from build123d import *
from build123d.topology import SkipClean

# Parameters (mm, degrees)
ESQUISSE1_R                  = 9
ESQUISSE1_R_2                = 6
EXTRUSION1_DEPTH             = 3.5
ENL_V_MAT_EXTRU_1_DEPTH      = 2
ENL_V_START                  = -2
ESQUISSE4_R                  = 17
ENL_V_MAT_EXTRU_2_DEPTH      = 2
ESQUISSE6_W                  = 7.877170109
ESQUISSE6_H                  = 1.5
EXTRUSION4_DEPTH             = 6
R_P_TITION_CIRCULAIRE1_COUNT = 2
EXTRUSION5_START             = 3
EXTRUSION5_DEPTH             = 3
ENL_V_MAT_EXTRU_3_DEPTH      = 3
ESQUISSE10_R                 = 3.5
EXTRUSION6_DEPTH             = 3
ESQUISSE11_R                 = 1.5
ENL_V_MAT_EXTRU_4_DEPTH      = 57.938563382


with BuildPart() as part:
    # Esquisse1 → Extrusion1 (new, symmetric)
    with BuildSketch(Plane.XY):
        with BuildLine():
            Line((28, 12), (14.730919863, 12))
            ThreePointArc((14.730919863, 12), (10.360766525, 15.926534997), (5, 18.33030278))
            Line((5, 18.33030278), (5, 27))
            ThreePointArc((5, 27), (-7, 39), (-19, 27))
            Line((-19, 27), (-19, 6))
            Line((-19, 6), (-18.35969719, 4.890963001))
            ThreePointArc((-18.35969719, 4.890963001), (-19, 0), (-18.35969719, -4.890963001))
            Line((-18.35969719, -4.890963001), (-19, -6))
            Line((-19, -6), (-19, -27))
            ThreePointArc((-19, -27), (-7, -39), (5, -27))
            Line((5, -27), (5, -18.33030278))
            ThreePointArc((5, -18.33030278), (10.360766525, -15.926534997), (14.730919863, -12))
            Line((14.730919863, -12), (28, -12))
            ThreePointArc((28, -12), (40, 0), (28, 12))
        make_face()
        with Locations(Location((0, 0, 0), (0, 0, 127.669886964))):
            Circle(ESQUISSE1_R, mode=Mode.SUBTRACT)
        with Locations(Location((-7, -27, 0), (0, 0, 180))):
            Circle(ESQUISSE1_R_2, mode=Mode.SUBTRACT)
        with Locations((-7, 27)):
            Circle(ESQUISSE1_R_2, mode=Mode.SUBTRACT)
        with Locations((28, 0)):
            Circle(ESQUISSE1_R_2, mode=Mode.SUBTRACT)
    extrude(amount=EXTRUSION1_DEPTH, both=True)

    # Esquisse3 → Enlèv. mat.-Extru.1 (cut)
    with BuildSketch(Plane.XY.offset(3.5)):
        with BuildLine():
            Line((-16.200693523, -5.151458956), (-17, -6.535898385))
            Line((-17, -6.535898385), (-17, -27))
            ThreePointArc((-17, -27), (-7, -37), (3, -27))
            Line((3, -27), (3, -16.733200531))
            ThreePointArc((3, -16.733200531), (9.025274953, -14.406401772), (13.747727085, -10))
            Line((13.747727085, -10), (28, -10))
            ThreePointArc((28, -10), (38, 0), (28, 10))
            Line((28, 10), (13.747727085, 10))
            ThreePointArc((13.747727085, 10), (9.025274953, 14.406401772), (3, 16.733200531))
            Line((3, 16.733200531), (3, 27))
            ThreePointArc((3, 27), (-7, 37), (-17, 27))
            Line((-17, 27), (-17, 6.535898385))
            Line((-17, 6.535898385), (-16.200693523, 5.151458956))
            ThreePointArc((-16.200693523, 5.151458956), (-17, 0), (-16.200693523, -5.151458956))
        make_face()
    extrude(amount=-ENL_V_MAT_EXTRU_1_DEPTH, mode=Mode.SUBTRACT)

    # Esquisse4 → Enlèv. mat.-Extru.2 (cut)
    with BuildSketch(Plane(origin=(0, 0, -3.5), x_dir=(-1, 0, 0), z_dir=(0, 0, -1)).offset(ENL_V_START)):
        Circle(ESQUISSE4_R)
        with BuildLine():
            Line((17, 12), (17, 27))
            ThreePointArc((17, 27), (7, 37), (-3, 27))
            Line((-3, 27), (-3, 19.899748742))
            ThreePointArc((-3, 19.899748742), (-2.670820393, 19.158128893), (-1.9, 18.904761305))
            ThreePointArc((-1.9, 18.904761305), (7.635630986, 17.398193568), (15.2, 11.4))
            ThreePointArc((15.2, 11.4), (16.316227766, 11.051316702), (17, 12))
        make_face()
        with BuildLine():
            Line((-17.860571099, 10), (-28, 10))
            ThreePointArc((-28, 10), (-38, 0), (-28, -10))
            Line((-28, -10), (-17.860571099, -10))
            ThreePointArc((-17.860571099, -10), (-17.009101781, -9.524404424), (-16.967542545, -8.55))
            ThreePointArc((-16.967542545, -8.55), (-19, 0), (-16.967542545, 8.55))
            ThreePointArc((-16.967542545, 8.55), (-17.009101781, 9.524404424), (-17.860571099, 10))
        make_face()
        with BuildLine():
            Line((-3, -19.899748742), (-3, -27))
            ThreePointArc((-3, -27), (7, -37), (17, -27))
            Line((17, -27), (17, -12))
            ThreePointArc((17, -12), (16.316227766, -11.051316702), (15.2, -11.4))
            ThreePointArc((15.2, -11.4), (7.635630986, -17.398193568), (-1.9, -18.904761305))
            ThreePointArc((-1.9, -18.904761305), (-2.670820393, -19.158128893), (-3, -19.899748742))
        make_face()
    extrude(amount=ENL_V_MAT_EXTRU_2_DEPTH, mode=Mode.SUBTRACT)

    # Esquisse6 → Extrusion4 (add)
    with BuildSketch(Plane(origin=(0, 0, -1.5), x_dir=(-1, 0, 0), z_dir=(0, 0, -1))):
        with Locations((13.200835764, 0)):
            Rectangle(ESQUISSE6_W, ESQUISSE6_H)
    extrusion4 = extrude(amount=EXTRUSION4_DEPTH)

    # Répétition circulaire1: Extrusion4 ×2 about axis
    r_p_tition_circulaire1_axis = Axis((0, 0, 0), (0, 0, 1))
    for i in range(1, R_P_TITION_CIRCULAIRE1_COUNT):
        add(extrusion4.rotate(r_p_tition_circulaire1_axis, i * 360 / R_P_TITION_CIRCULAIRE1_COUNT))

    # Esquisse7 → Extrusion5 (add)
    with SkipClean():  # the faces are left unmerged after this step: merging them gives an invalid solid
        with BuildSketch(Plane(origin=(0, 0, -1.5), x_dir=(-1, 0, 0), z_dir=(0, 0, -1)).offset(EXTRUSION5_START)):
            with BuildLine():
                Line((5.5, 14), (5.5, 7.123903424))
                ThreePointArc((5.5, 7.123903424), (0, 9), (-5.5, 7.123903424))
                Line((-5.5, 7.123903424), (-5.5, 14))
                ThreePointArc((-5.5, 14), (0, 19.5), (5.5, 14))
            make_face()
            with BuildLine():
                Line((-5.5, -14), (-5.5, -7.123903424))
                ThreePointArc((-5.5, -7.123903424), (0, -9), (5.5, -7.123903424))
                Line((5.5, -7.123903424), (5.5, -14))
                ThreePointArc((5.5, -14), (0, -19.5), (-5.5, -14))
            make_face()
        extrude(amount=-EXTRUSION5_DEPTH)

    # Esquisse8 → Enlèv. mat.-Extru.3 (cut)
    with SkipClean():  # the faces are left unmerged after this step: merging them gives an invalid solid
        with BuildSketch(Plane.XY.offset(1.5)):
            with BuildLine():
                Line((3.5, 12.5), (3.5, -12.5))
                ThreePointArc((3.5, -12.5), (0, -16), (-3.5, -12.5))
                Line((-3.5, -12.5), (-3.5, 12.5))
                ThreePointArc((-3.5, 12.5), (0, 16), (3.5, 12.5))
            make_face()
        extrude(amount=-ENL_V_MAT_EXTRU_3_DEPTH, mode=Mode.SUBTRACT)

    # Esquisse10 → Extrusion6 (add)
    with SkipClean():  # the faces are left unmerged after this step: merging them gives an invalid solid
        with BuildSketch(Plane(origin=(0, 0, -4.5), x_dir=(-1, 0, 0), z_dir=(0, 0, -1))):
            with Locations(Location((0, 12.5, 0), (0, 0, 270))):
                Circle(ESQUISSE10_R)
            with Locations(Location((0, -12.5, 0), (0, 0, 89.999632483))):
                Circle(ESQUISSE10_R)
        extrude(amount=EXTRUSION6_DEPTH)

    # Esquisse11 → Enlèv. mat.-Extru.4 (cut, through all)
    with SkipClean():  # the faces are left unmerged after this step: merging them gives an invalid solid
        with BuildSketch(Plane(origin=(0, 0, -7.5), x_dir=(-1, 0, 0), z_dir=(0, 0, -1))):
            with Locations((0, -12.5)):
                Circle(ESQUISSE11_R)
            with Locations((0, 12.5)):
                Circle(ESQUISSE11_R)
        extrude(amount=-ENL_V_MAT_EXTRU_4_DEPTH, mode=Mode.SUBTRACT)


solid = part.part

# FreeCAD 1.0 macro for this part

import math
import FreeCAD as App
import Part
import Sketcher

V = App.Vector
Q = App.Units.Quantity

doc = App.newDocument("Part")
body = doc.addObject("PartDesign::Body", "Body")

sketch1 = body.newObject("Sketcher::SketchObject", "Sketch")
sketch1.AttachmentSupport = (doc.getObject("XY_Plane"), [""])
sketch1.MapMode = "FlatFace"
sketch1.addGeometry(Part.LineSegment(V(28, 12, 0), V(14.73092, 12, 0)), False)
sketch1.addGeometry(Part.ArcOfCircle(Part.Circle(V(0, 0, 0), V(0, 0, 1), 19), math.radians(39.166711), math.radians(74.742477)), False)
sketch1.addGeometry(Part.LineSegment(V(5, 18.330303, 0), V(5, 27, 0)), False)
sketch1.addGeometry(Part.ArcOfCircle(Part.Circle(V(-7, 27, 0), V(0, 0, 1), 12), math.radians(0), math.radians(180)), False)
sketch1.addGeometry(Part.LineSegment(V(-19, 27, 0), V(-19, 6, 0)), False)
sketch1.addGeometry(Part.LineSegment(V(-19, 6, 0), V(-18.359697, 4.890963, 0)), False)
sketch1.addGeometry(Part.ArcOfCircle(Part.Circle(V(0, 0, 0), V(0, 0, 1), 19), math.radians(165.083024), math.radians(194.916976)), False)
sketch1.addGeometry(Part.LineSegment(V(-18.359697, -4.890963, 0), V(-19, -6, 0)), False)
sketch1.addGeometry(Part.LineSegment(V(-19, -6, 0), V(-19, -27, 0)), False)
sketch1.addGeometry(Part.ArcOfCircle(Part.Circle(V(-7, -27, 0), V(0, 0, 1), 12), math.radians(180), math.radians(360)), False)
sketch1.addGeometry(Part.LineSegment(V(5, -27, 0), V(5, -18.330303, 0)), False)
sketch1.addGeometry(Part.ArcOfCircle(Part.Circle(V(0, 0, 0), V(0, 0, 1), 19), math.radians(-74.742477), math.radians(-39.166711)), False)
sketch1.addGeometry(Part.LineSegment(V(14.73092, -12, 0), V(28, -12, 0)), False)
sketch1.addGeometry(Part.ArcOfCircle(Part.Circle(V(28, 0, 0), V(0, 0, 1), 12), math.radians(-90), math.radians(90)), False)
sketch1.addGeometry(Part.Circle(V(-7, -27, 0), V(0, 0, 1), 6), False)
sketch1.addGeometry(Part.Circle(V(0, 0, 0), V(0, 0, 1), 9), False)
sketch1.addGeometry(Part.Circle(V(-7, 27, 0), V(0, 0, 1), 6), False)
sketch1.addGeometry(Part.Circle(V(28, 0, 0), V(0, 0, 1), 6), False)
sketch1.addConstraint(Sketcher.Constraint("Coincident", 0, 2, 1, 1))
sketch1.addConstraint(Sketcher.Constraint("Coincident", 1, 2, 2, 1))
sketch1.addConstraint(Sketcher.Constraint("Tangent", 2, 2, 3, 1))
sketch1.addConstraint(Sketcher.Constraint("Tangent", 3, 2, 4, 1))
sketch1.addConstraint(Sketcher.Constraint("Coincident", 4, 2, 5, 1))
sketch1.addConstraint(Sketcher.Constraint("Coincident", 5, 2, 6, 1))
sketch1.addConstraint(Sketcher.Constraint("Coincident", 6, 2, 7, 1))
sketch1.addConstraint(Sketcher.Constraint("Coincident", 7, 2, 8, 1))
sketch1.addConstraint(Sketcher.Constraint("Tangent", 8, 2, 9, 1))
sketch1.addConstraint(Sketcher.Constraint("Tangent", 9, 2, 10, 1))
sketch1.addConstraint(Sketcher.Constraint("Coincident", 10, 2, 11, 1))
sketch1.addConstraint(Sketcher.Constraint("Coincident", 11, 2, 12, 1))
sketch1.addConstraint(Sketcher.Constraint("Tangent", 12, 2, 13, 1))
sketch1.addConstraint(Sketcher.Constraint("Tangent", 13, 2, 0, 1))
sketch1.addConstraint(Sketcher.Constraint("Horizontal", 0))
sketch1.addConstraint(Sketcher.Constraint("Vertical", 2))
sketch1.addConstraint(Sketcher.Constraint("Vertical", 4))
sketch1.addConstraint(Sketcher.Constraint("Vertical", 8))
sketch1.addConstraint(Sketcher.Constraint("Vertical", 10))
sketch1.addConstraint(Sketcher.Constraint("Horizontal", 12))
sketch1.addConstraint(Sketcher.Constraint("Coincident", 1, 3, -1, 1))
sketch1.addConstraint(Sketcher.Constraint("Coincident", 6, 3, -1, 1))
sketch1.addConstraint(Sketcher.Constraint("Coincident", 11, 3, -1, 1))
sketch1.addConstraint(Sketcher.Constraint("Coincident", 15, 3, -1, 1))
sketch1.addConstraint(Sketcher.Constraint("Coincident", 14, 3, 9, 3))
sketch1.addConstraint(Sketcher.Constraint("Coincident", 16, 3, 3, 3))
sketch1.addConstraint(Sketcher.Constraint("Coincident", 17, 3, 13, 3))
sketch1.addConstraint(Sketcher.Constraint("Equal", 1, 6))
sketch1.addConstraint(Sketcher.Constraint("Equal", 3, 9))
sketch1.addConstraint(Sketcher.Constraint("Equal", 6, 11))
sketch1.addConstraint(Sketcher.Constraint("Equal", 9, 13))
sketch1.addConstraint(Sketcher.Constraint("Equal", 14, 16))
sketch1.addConstraint(Sketcher.Constraint("Equal", 16, 17))
sketch1.addConstraint(Sketcher.Constraint("Symmetric", 3, 3, 9, 3, -1))
sketch1.addConstraint(Sketcher.Constraint("PointOnObject", 13, 3, -1))
sketch1.addConstraint(Sketcher.Constraint("Vertical", 5, 2, 6, 2))
sketch1.addConstraint(Sketcher.Constraint("Equal", 4, 8))
sketch1.addConstraint(Sketcher.Constraint("Diameter", 14, 12.0))
sketch1.addConstraint(Sketcher.Constraint("Diameter", 15, 18.0))
sketch1.addConstraint(Sketcher.Constraint("Radius", 1, 19.0))
sketch1.addConstraint(Sketcher.Constraint("Radius", 3, 12.0))
sketch1.addConstraint(Sketcher.Constraint("DistanceY", 4, 2, 4, 1, 21.0))
sketch1.addConstraint(Sketcher.Constraint("Angle", 5, Q("-60 deg")))
sketch1.addConstraint(Sketcher.Constraint("DistanceX", 3, 3, -1, 1, 7.0))
sketch1.addConstraint(Sketcher.Constraint("DistanceY", -1, 1, 3, 3, 27.0))
sketch1.addConstraint(Sketcher.Constraint("DistanceX", -1, 1, 13, 3, 28.0))
pad1 = body.newObject("PartDesign::Pad", "Pad")
pad1.Profile = sketch1
pad1.Length = 7
pad1.Midplane = True

sketch2 = body.newObject("Sketcher::SketchObject", "Sketch001")
sketch2.AttachmentSupport = (doc.getObject("XY_Plane"), [""])
sketch2.MapMode = "FlatFace"
sketch2.AttachmentOffset = App.Placement(V(0, 0, 3.5), App.Rotation())
sketch2.addGeometry(Part.LineSegment(V(-16.200694, -5.151459, 0), V(-17, -6.535898, 0)), False)
sketch2.addGeometry(Part.LineSegment(V(-17, -6.535898, 0), V(-17, -27, 0)), False)
sketch2.addGeometry(Part.ArcOfCircle(Part.Circle(V(-7, -27, 0), V(0, 0, 1), 10), math.radians(180), math.radians(360)), False)
sketch2.addGeometry(Part.LineSegment(V(3, -27, 0), V(3, -16.733201, 0)), False)
sketch2.addGeometry(Part.ArcOfCircle(Part.Circle(V(0, 0, 0), V(0, 0, 1), 17), math.radians(-79.835751), math.radians(-36.031879)), False)
sketch2.addGeometry(Part.LineSegment(V(13.747727, -10, 0), V(28, -10, 0)), False)
sketch2.addGeometry(Part.ArcOfCircle(Part.Circle(V(28, 0, 0), V(0, 0, 1), 10), math.radians(-90), math.radians(90)), False)
sketch2.addGeometry(Part.LineSegment(V(28, 10, 0), V(13.747727, 10, 0)), False)
sketch2.addGeometry(Part.ArcOfCircle(Part.Circle(V(0, 0, 0), V(0, 0, 1), 17), math.radians(36.031879), math.radians(79.835751)), False)
sketch2.addGeometry(Part.LineSegment(V(3, 16.733201, 0), V(3, 27, 0)), False)
sketch2.addGeometry(Part.ArcOfCircle(Part.Circle(V(-7, 27, 0), V(0, 0, 1), 10), math.radians(0), math.radians(180)), False)
sketch2.addGeometry(Part.LineSegment(V(-17, 27, 0), V(-17, 6.535898, 0)), False)
sketch2.addGeometry(Part.LineSegment(V(-17, 6.535898, 0), V(-16.200694, 5.151459, 0)), False)
sketch2.addGeometry(Part.ArcOfCircle(Part.Circle(V(0, 0, 0), V(0, 0, 1), 17), math.radians(162.360497), math.radians(197.639503)), False)
sketch2.addConstraint(Sketcher.Constraint("Coincident", 0, 2, 1, 1))
sketch2.addConstraint(Sketcher.Constraint("Tangent", 1, 2, 2, 1))
sketch2.addConstraint(Sketcher.Constraint("Tangent", 2, 2, 3, 1))
sketch2.addConstraint(Sketcher.Constraint("Coincident", 3, 2, 4, 1))
sketch2.addConstraint(Sketcher.Constraint("Coincident", 4, 2, 5, 1))
sketch2.addConstraint(Sketcher.Constraint("Tangent", 5, 2, 6, 1))
sketch2.addConstraint(Sketcher.Constraint("Tangent", 6, 2, 7, 1))
sketch2.addConstraint(Sketcher.Constraint("Coincident", 7, 2, 8, 1))
sketch2.addConstraint(Sketcher.Constraint("Coincident", 8, 2, 9, 1))
sketch2.addConstraint(Sketcher.Constraint("Tangent", 9, 2, 10, 1))
sketch2.addConstraint(Sketcher.Constraint("Tangent", 10, 2, 11, 1))
sketch2.addConstraint(Sketcher.Constraint("Coincident", 11, 2, 12, 1))
sketch2.addConstraint(Sketcher.Constraint("Coincident", 12, 2, 13, 1))
sketch2.addConstraint(Sketcher.Constraint("Coincident", 13, 2, 0, 1))
sketch2.addConstraint(Sketcher.Constraint("Vertical", 1))
sketch2.addConstraint(Sketcher.Constraint("Vertical", 3))
sketch2.addConstraint(Sketcher.Constraint("Horizontal", 5))
sketch2.addConstraint(Sketcher.Constraint("Horizontal", 7))
sketch2.addConstraint(Sketcher.Constraint("Vertical", 9))
sketch2.addConstraint(Sketcher.Constraint("Vertical", 11))
sketch2.addConstraint(Sketcher.Constraint("Coincident", 4, 3, -1, 1))
sketch2.addConstraint(Sketcher.Constraint("Coincident", 8, 3, -1, 1))
sketch2.addConstraint(Sketcher.Constraint("Coincident", 13, 3, -1, 1))
sketch2.addConstraint(Sketcher.Constraint("Equal", 2, 6))
sketch2.addConstraint(Sketcher.Constraint("Equal", 4, 8))
sketch2.addConstraint(Sketcher.Constraint("Equal", 6, 10))
sketch2.addConstraint(Sketcher.Constraint("Equal", 8, 13))
sketch2.addConstraint(Sketcher.Constraint("Symmetric", 2, 3, 10, 3, -1))
sketch2.addConstraint(Sketcher.Constraint("PointOnObject", 6, 3, -1))
sketch2.addConstraint(Sketcher.Constraint("Vertical", 12, 2, 13, 2))
sketch2.addConstraint(Sketcher.Constraint("Equal", 1, 11))
sketch2.addConstraint(Sketcher.Constraint("Radius", 2, 10.0))
sketch2.addConstraint(Sketcher.Constraint("Radius", 4, 17.0))
sketch2.addConstraint(Sketcher.Constraint("Angle", 0, Q("-120 deg")))
sketch2.addConstraint(Sketcher.Constraint("DistanceX", 2, 3, -1, 1, 7.0))
sketch2.addConstraint(Sketcher.Constraint("DistanceY", 2, 3, -1, 1, 27.0))
sketch2.addConstraint(Sketcher.Constraint("DistanceX", -1, 1, 6, 3, 28.0))
sketch2.addConstraint(Sketcher.Constraint("DistanceY", 1, 2, 1, 1, 20.464102))
pocket1 = body.newObject("PartDesign::Pocket", "Pocket")
pocket1.Profile = sketch2
pocket1.Length = 2

sketch3 = body.newObject("Sketcher::SketchObject", "Sketch002")
sketch3.AttachmentSupport = (doc.getObject("XY_Plane"), [""])
sketch3.MapMode = "FlatFace"
sketch3.AttachmentOffset = App.Placement(V(0, 0, -1.5), App.Rotation())
sketch3.addGeometry(Part.Circle(V(0, 0, 0), V(0, 0, 1), 17), False)
sketch3.addGeometry(Part.LineSegment(V(-17, 12, 0), V(-17, 27, 0)), False)
sketch3.addGeometry(Part.ArcOfCircle(Part.Circle(V(-7, 27, 0), V(0, 0, 1), 10), math.radians(0), math.radians(180)), False)
sketch3.addGeometry(Part.LineSegment(V(3, 27, 0), V(3, 19.899749, 0)), False)
sketch3.addGeometry(Part.ArcOfCircle(Part.Circle(V(2, 19.899749, 0), V(0, 0, 1), 1), math.radians(-95.73917), math.radians(0)), False)
sketch3.addGeometry(Part.ArcOfCircle(Part.Circle(V(0, 0, 0), V(0, 0, 1), 19), math.radians(84.26083), math.radians(143.130102)), False)
sketch3.addGeometry(Part.ArcOfCircle(Part.Circle(V(-16, 12, 0), V(0, 0, 1), 1), math.radians(180), math.radians(323.130102)), False)
sketch3.addGeometry(Part.LineSegment(V(17.860571, 10, 0), V(28, 10, 0)), False)
sketch3.addGeometry(Part.ArcOfCircle(Part.Circle(V(28, 0, 0), V(0, 0, 1), 10), math.radians(-90), math.radians(90)), False)
sketch3.addGeometry(Part.LineSegment(V(28, -10, 0), V(17.860571, -10, 0)), False)
sketch3.addGeometry(Part.ArcOfCircle(Part.Circle(V(17.860571, -9, 0), V(0, 0, 1), 1), math.radians(153.256316), math.radians(270)), False)
sketch3.addGeometry(Part.ArcOfCircle(Part.Circle(V(0, 0, 0), V(0, 0, 1), 19), math.radians(-26.743684), math.radians(26.743684)), False)
sketch3.addGeometry(Part.ArcOfCircle(Part.Circle(V(17.860571, 9, 0), V(0, 0, 1), 1), math.radians(90), math.radians(206.743684)), False)
sketch3.addGeometry(Part.LineSegment(V(3, -19.899749, 0), V(3, -27, 0)), False)
sketch3.addGeometry(Part.ArcOfCircle(Part.Circle(V(-7, -27, 0), V(0, 0, 1), 10), math.radians(180), math.radians(360)), False)
sketch3.addGeometry(Part.LineSegment(V(-17, -27, 0), V(-17, -12, 0)), False)
sketch3.addGeometry(Part.ArcOfCircle(Part.Circle(V(-16, -12, 0), V(0, 0, 1), 1), math.radians(36.869898), math.radians(180)), False)
sketch3.addGeometry(Part.ArcOfCircle(Part.Circle(V(0, 0, 0), V(0, 0, 1), 19), math.radians(-143.130102), math.radians(-84.26083)), False)
sketch3.addGeometry(Part.ArcOfCircle(Part.Circle(V(2, -19.899749, 0), V(0, 0, 1), 1), math.radians(0), math.radians(95.73917)), False)
sketch3.addConstraint(Sketcher.Constraint("Tangent", 1, 2, 2, 2))
sketch3.addConstraint(Sketcher.Constraint("Tangent", 2, 1, 3, 1))
sketch3.addConstraint(Sketcher.Constraint("Tangent", 3, 2, 4, 2))
sketch3.addConstraint(Sketcher.Constraint("Tangent", 4, 1, 5, 1))
sketch3.addConstraint(Sketcher.Constraint("Tangent", 5, 2, 6, 2))
sketch3.addConstraint(Sketcher.Constraint("Tangent", 6, 1, 1, 1))
sketch3.addConstraint(Sketcher.Constraint("Tangent", 7, 2, 8, 2))
sketch3.addConstraint(Sketcher.Constraint("Tangent", 8, 1, 9, 1))
sketch3.addConstraint(Sketcher.Constraint("Tangent", 9, 2, 10, 2))
sketch3.addConstraint(Sketcher.Constraint("Tangent", 10, 1, 11, 1))
sketch3.addConstraint(Sketcher.Constraint("Tangent", 11, 2, 12, 2))
sketch3.addConstraint(Sketcher.Constraint("Tangent", 12, 1, 7, 1))
sketch3.addConstraint(Sketcher.Constraint("Tangent", 13, 2, 14, 2))
sketch3.addConstraint(Sketcher.Constraint("Tangent", 14, 1, 15, 1))
sketch3.addConstraint(Sketcher.Constraint("Tangent", 15, 2, 16, 2))
sketch3.addConstraint(Sketcher.Constraint("Tangent", 16, 1, 17, 1))
sketch3.addConstraint(Sketcher.Constraint("Tangent", 17, 2, 18, 2))
sketch3.addConstraint(Sketcher.Constraint("Tangent", 18, 1, 13, 1))
sketch3.addConstraint(Sketcher.Constraint("Vertical", 1))
sketch3.addConstraint(Sketcher.Constraint("Vertical", 3))
sketch3.addConstraint(Sketcher.Constraint("Horizontal", 7))
sketch3.addConstraint(Sketcher.Constraint("Horizontal", 9))
sketch3.addConstraint(Sketcher.Constraint("Vertical", 13))
sketch3.addConstraint(Sketcher.Constraint("Vertical", 15))
sketch3.addConstraint(Sketcher.Constraint("Coincident", 0, 3, -1, 1))
sketch3.addConstraint(Sketcher.Constraint("Coincident", 5, 3, -1, 1))
sketch3.addConstraint(Sketcher.Constraint("Coincident", 11, 3, -1, 1))
sketch3.addConstraint(Sketcher.Constraint("Coincident", 17, 3, -1, 1))
sketch3.addConstraint(Sketcher.Constraint("Equal", 4, 6))
sketch3.addConstraint(Sketcher.Constraint("Equal", 2, 8))
sketch3.addConstraint(Sketcher.Constraint("Equal", 6, 10))
sketch3.addConstraint(Sketcher.Constraint("Equal", 5, 11))
sketch3.addConstraint(Sketcher.Constraint("Equal", 10, 12))
sketch3.addConstraint(Sketcher.Constraint("Equal", 8, 14))
sketch3.addConstraint(Sketcher.Constraint("Equal", 12, 16))
sketch3.addConstraint(Sketcher.Constraint("Equal", 11, 17))
sketch3.addConstraint(Sketcher.Constraint("Equal", 16, 18))
sketch3.addConstraint(Sketcher.Constraint("Symmetric", 2, 3, 14, 3, -1))
sketch3.addConstraint(Sketcher.Constraint("PointOnObject", 8, 3, -1))
sketch3.addConstraint(Sketcher.Constraint("Diameter", 0, 34.0))
sketch3.addConstraint(Sketcher.Constraint("Radius", 2, 10.0))
sketch3.addConstraint(Sketcher.Constraint("Radius", 4, 1.0))
sketch3.addConstraint(Sketcher.Constraint("Radius", 5, 19.0))
sketch3.addConstraint(Sketcher.Constraint("DistanceY", 1, 1, 1, 2, 15.0))
sketch3.addConstraint(Sketcher.Constraint("DistanceX", 2, 3, -1, 1, 7.0))
sketch3.addConstraint(Sketcher.Constraint("DistanceX", -1, 1, 8, 3, 28.0))
pocket2 = body.newObject("PartDesign::Pocket", "Pocket001")
pocket2.Profile = sketch3
pocket2.Length = 2

sketch4 = body.newObject("Sketcher::SketchObject", "Sketch003")
sketch4.AttachmentSupport = (doc.getObject("XY_Plane"), [""])
sketch4.MapMode = "FlatFace"
sketch4.AttachmentOffset = App.Placement(V(0, 0, -1.5), App.Rotation())
sketch4.addGeometry(Part.LineSegment(V(-9.262251, 0.75, 0), V(-9.262251, -0.75, 0)), False)
sketch4.addGeometry(Part.LineSegment(V(-9.262251, -0.75, 0), V(-17.139421, -0.75, 0)), False)
sketch4.addGeometry(Part.LineSegment(V(-17.139421, -0.75, 0), V(-17.139421, 0.75, 0)), False)
sketch4.addGeometry(Part.LineSegment(V(-17.139421, 0.75, 0), V(-9.262251, 0.75, 0)), False)
sketch4.addConstraint(Sketcher.Constraint("Coincident", 0, 2, 1, 1))
sketch4.addConstraint(Sketcher.Constraint("Coincident", 1, 2, 2, 1))
sketch4.addConstraint(Sketcher.Constraint("Coincident", 2, 2, 3, 1))
sketch4.addConstraint(Sketcher.Constraint("Coincident", 3, 2, 0, 1))
sketch4.addConstraint(Sketcher.Constraint("Vertical", 0))
sketch4.addConstraint(Sketcher.Constraint("Horizontal", 1))
sketch4.addConstraint(Sketcher.Constraint("Vertical", 2))
sketch4.addConstraint(Sketcher.Constraint("Horizontal", 3))
sketch4.addConstraint(Sketcher.Constraint("DistanceY", 0, 2, 0, 1, 1.5))
sketch4.addConstraint(Sketcher.Constraint("DistanceY", 0, 2, -1, 1, 0.75))
sketch4.addConstraint(Sketcher.Constraint("DistanceX", 1, 2, 1, 1, 7.87717))
sketch4.addConstraint(Sketcher.Constraint("DistanceX", 0, 2, -1, 1, 9.262251))
pad2 = body.newObject("PartDesign::Pad", "Pad001")
pad2.Profile = sketch4
pad2.Length = 6
pad2.Reversed = True
doc.recompute()

polarpattern = body.newObject("PartDesign::PolarPattern", "PolarPattern")
polarpattern.Originals = [pad2]
polarpattern.Axis = (doc.getObject("Z_Axis"), [""])
polarpattern.Angle = 360
polarpattern.Occurrences = 2
body.Tip = polarpattern

sketch5 = body.newObject("Sketcher::SketchObject", "Sketch004")
sketch5.AttachmentSupport = (doc.getObject("XY_Plane"), [""])
sketch5.MapMode = "FlatFace"
sketch5.AttachmentOffset = App.Placement(V(0, 0, -4.5), App.Rotation())
sketch5.addGeometry(Part.LineSegment(V(-5.5, 7.123903, 0), V(-5.5, 14, 0)), False)
sketch5.addGeometry(Part.ArcOfCircle(Part.Circle(V(0, 14, 0), V(0, 0, 1), 5.5), math.radians(0), math.radians(180)), False)
sketch5.addGeometry(Part.LineSegment(V(5.5, 14, 0), V(5.5, 7.123903, 0)), False)
sketch5.addGeometry(Part.ArcOfCircle(Part.Circle(V(0, 0, 0), V(0, 0, 1), 9), math.radians(52.330113), math.radians(127.669887)), False)
sketch5.addGeometry(Part.LineSegment(V(5.5, -7.123903, 0), V(5.5, -14, 0)), False)
sketch5.addGeometry(Part.ArcOfCircle(Part.Circle(V(0, -14, 0), V(0, 0, 1), 5.5), math.radians(180), math.radians(360)), False)
sketch5.addGeometry(Part.LineSegment(V(-5.5, -14, 0), V(-5.5, -7.123903, 0)), False)
sketch5.addGeometry(Part.ArcOfCircle(Part.Circle(V(0, 0, 0), V(0, 0, 1), 9), math.radians(-127.669887), math.radians(-52.330113)), False)
sketch5.addConstraint(Sketcher.Constraint("Tangent", 0, 2, 1, 2))
sketch5.addConstraint(Sketcher.Constraint("Tangent", 1, 1, 2, 1))
sketch5.addConstraint(Sketcher.Constraint("Coincident", 2, 2, 3, 1))
sketch5.addConstraint(Sketcher.Constraint("Coincident", 3, 2, 0, 1))
sketch5.addConstraint(Sketcher.Constraint("Tangent", 4, 2, 5, 2))
sketch5.addConstraint(Sketcher.Constraint("Tangent", 5, 1, 6, 1))
sketch5.addConstraint(Sketcher.Constraint("Coincident", 6, 2, 7, 1))
sketch5.addConstraint(Sketcher.Constraint("Coincident", 7, 2, 4, 1))
sketch5.addConstraint(Sketcher.Constraint("Vertical", 0))
sketch5.addConstraint(Sketcher.Constraint("Vertical", 2))
sketch5.addConstraint(Sketcher.Constraint("Vertical", 4))
sketch5.addConstraint(Sketcher.Constraint("Vertical", 6))
sketch5.addConstraint(Sketcher.Constraint("Coincident", 3, 3, -1, 1))
sketch5.addConstraint(Sketcher.Constraint("Coincident", 7, 3, -1, 1))
sketch5.addConstraint(Sketcher.Constraint("Equal", 1, 5))
sketch5.addConstraint(Sketcher.Constraint("Equal", 3, 7))
sketch5.addConstraint(Sketcher.Constraint("Symmetric", 1, 3, 5, 3, -1, 1))
sketch5.addConstraint(Sketcher.Constraint("PointOnObject", 1, 3, -2))
sketch5.addConstraint(Sketcher.Constraint("Radius", 3, 9.0))
sketch5.addConstraint(Sketcher.Constraint("Radius", 1, 5.5))
sketch5.addConstraint(Sketcher.Constraint("DistanceY", -1, 1, 1, 3, 14.0))
pad3 = body.newObject("PartDesign::Pad", "Pad002")
pad3.Profile = sketch5
pad3.Length = 3

sketch6 = body.newObject("Sketcher::SketchObject", "Sketch005")
sketch6.AttachmentSupport = (doc.getObject("XY_Plane"), [""])
sketch6.MapMode = "FlatFace"
sketch6.AttachmentOffset = App.Placement(V(0, 0, 1.5), App.Rotation())
sketch6.addGeometry(Part.LineSegment(V(3.5, -12.5, 0), V(3.5, 12.5, 0)), False)
sketch6.addGeometry(Part.ArcOfCircle(Part.Circle(V(0, 12.5, 0), V(0, 0, 1), 3.5), math.radians(0), math.radians(180)), False)
sketch6.addGeometry(Part.LineSegment(V(-3.5, 12.5, 0), V(-3.5, -12.5, 0)), False)
sketch6.addGeometry(Part.ArcOfCircle(Part.Circle(V(0, -12.5, 0), V(0, 0, 1), 3.5), math.radians(180), math.radians(360)), False)
sketch6.addConstraint(Sketcher.Constraint("Tangent", 0, 2, 1, 1))
sketch6.addConstraint(Sketcher.Constraint("Tangent", 1, 2, 2, 1))
sketch6.addConstraint(Sketcher.Constraint("Tangent", 2, 2, 3, 1))
sketch6.addConstraint(Sketcher.Constraint("Tangent", 3, 2, 0, 1))
sketch6.addConstraint(Sketcher.Constraint("Vertical", 0))
sketch6.addConstraint(Sketcher.Constraint("Vertical", 2))
sketch6.addConstraint(Sketcher.Constraint("Symmetric", 1, 3, 3, 3, -1, 1))
sketch6.addConstraint(Sketcher.Constraint("Radius", 1, 3.5))
sketch6.addConstraint(Sketcher.Constraint("DistanceY", 0, 1, 0, 2, 25.0))
pocket3 = body.newObject("PartDesign::Pocket", "Pocket002")
pocket3.Profile = sketch6
pocket3.Length = 3

sketch7 = body.newObject("Sketcher::SketchObject", "Sketch006")
sketch7.AttachmentSupport = (doc.getObject("XY_Plane"), [""])
sketch7.MapMode = "FlatFace"
sketch7.AttachmentOffset = App.Placement(V(0, 0, -4.5), App.Rotation())
sketch7.addGeometry(Part.Circle(V(0, 12.5, 0), V(0, 0, 1), 3.5), False)
sketch7.addGeometry(Part.Circle(V(0, -12.5, 0), V(0, 0, 1), 3.5), False)
sketch7.addConstraint(Sketcher.Constraint("Equal", 0, 1))
sketch7.addConstraint(Sketcher.Constraint("Symmetric", 0, 3, 1, 3, -1, 1))
sketch7.addConstraint(Sketcher.Constraint("PointOnObject", 0, 3, -2))
sketch7.addConstraint(Sketcher.Constraint("Diameter", 0, 7.0))
sketch7.addConstraint(Sketcher.Constraint("DistanceY", 1, 3, 0, 3, 25.0))
pad4 = body.newObject("PartDesign::Pad", "Pad003")
pad4.Profile = sketch7
pad4.Length = 3
pad4.Reversed = True

sketch8 = body.newObject("Sketcher::SketchObject", "Sketch007")
sketch8.AttachmentSupport = (doc.getObject("XY_Plane"), [""])
sketch8.MapMode = "FlatFace"
sketch8.AttachmentOffset = App.Placement(V(0, 0, -7.5), App.Rotation())
sketch8.addGeometry(Part.Circle(V(0, -12.5, 0), V(0, 0, 1), 1.5), False)
sketch8.addGeometry(Part.Circle(V(0, 12.5, 0), V(0, 0, 1), 1.5), False)
sketch8.addConstraint(Sketcher.Constraint("Equal", 0, 1))
sketch8.addConstraint(Sketcher.Constraint("Symmetric", 0, 3, 1, 3, -1, 1))
sketch8.addConstraint(Sketcher.Constraint("PointOnObject", 0, 3, -2))
sketch8.addConstraint(Sketcher.Constraint("Diameter", 0, 3.0))
sketch8.addConstraint(Sketcher.Constraint("DistanceY", 0, 3, 1, 3, 25.0))
pocket4 = body.newObject("PartDesign::Pocket", "Pocket003")
pocket4.Profile = sketch8
pocket4.Type = "ThroughAll"
pocket4.Reversed = True

doc.recompute()
